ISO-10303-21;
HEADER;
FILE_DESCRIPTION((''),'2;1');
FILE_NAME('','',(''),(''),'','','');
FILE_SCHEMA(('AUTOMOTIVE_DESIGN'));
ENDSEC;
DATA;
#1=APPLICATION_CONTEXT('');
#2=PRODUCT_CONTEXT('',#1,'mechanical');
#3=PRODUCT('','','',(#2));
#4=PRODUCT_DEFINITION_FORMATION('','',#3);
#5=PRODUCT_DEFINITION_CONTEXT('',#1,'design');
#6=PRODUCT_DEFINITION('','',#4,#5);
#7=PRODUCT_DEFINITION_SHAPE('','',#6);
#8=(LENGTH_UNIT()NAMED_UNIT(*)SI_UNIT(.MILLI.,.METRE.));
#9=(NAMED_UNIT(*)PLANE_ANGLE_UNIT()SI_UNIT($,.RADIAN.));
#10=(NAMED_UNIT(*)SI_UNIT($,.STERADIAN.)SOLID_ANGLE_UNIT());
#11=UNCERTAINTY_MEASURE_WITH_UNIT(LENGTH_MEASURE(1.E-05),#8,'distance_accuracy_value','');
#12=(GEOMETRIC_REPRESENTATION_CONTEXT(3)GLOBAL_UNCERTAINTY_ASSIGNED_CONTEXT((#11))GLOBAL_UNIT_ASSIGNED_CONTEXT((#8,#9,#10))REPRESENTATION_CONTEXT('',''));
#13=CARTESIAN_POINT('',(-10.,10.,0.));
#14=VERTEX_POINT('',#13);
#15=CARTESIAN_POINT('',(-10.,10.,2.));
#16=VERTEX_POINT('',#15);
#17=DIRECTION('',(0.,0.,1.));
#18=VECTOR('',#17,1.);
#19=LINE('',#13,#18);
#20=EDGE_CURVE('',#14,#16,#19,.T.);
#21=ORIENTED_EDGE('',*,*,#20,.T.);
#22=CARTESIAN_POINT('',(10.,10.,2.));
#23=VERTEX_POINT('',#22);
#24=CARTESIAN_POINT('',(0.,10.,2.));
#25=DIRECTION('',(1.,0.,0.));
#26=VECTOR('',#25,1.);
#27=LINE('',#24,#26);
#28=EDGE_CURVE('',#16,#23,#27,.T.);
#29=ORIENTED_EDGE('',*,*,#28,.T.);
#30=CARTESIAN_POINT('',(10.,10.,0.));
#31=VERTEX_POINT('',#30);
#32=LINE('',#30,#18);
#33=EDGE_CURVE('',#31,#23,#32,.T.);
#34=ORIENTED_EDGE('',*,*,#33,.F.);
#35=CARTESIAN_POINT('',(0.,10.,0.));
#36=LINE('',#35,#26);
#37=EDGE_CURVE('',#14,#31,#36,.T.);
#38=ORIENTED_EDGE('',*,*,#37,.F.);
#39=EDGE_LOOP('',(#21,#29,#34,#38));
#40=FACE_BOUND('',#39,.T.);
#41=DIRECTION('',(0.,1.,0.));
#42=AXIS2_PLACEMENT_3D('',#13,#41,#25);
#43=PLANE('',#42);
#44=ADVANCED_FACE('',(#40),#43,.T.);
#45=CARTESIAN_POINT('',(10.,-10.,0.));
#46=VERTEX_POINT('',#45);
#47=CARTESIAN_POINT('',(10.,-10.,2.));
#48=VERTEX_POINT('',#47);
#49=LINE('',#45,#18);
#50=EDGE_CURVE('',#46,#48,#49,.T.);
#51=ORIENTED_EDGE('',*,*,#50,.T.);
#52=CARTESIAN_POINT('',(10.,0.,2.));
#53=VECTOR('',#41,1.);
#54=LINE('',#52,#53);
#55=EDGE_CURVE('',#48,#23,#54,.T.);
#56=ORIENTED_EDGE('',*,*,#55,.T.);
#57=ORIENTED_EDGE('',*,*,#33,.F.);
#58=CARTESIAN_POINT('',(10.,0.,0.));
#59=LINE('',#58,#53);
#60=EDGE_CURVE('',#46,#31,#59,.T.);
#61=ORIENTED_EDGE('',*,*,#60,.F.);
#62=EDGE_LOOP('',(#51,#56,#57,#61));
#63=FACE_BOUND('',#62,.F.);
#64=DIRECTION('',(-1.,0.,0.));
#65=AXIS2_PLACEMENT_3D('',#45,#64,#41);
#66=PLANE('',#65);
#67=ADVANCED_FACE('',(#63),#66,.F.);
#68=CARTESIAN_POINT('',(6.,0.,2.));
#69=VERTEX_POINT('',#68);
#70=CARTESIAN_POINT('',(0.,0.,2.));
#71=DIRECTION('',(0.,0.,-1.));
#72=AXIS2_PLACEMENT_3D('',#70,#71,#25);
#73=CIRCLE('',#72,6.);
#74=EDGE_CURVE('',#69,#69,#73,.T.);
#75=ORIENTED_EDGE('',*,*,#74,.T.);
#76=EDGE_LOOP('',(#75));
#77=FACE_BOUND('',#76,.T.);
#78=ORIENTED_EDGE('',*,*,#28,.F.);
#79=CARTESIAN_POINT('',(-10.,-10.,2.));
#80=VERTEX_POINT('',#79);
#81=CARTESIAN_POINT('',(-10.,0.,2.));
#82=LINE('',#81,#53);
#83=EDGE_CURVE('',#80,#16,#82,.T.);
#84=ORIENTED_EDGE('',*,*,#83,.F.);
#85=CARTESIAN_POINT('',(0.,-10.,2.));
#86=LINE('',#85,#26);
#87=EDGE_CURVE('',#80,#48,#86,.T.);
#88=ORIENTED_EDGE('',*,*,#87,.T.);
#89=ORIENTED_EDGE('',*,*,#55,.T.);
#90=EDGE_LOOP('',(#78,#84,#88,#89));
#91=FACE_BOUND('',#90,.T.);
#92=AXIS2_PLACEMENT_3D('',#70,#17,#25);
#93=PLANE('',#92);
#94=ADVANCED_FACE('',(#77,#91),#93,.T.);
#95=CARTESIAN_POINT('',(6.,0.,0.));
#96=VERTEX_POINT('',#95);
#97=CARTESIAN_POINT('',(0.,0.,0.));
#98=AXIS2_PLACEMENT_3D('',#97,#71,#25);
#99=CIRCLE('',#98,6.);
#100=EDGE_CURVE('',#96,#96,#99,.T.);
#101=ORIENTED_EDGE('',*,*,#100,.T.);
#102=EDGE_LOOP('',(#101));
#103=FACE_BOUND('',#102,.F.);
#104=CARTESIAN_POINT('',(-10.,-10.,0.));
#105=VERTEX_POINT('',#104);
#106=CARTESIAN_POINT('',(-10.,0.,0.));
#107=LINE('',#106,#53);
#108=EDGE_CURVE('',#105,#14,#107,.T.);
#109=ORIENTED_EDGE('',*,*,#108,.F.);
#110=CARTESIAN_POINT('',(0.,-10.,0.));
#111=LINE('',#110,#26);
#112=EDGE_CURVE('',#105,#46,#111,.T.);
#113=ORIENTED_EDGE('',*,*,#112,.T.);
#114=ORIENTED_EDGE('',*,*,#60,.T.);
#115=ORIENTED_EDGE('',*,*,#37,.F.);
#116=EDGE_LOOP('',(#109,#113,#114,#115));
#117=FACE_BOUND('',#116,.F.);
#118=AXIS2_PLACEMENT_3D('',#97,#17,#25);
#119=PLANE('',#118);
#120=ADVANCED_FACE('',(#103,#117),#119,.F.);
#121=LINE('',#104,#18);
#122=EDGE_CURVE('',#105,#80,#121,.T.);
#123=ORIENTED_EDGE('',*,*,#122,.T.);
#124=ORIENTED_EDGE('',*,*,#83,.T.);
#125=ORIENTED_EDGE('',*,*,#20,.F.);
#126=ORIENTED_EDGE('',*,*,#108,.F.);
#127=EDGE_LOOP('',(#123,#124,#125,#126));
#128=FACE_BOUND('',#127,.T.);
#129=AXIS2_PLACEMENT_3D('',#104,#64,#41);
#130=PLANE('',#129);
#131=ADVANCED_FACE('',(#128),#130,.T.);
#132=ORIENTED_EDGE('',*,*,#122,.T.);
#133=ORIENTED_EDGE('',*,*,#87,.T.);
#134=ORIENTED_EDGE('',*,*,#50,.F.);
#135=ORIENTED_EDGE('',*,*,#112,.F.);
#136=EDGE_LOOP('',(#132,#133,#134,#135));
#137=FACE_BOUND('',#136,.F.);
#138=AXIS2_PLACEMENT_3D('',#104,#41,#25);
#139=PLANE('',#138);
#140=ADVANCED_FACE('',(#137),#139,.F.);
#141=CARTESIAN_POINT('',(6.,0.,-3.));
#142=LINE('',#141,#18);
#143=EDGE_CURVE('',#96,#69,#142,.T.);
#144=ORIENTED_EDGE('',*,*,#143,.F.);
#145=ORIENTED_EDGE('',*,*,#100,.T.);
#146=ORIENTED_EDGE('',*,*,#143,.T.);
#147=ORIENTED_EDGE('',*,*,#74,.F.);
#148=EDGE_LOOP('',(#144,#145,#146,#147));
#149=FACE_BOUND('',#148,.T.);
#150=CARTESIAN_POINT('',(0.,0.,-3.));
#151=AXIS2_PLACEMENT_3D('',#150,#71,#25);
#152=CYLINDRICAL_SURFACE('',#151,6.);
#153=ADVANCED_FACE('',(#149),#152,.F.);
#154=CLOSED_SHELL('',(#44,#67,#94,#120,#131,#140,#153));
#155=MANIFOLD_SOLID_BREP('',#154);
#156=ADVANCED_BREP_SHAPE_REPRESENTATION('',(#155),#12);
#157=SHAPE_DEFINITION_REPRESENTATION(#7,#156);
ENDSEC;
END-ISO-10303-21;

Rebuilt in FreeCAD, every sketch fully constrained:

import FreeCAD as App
import Part
import Sketcher

V = App.Vector

doc = App.newDocument("Part")
body = doc.addObject("PartDesign::Body", "Body")

sketch1 = doc.addObject("Sketcher::SketchObject", "Sketch")
body.addObject(sketch1)
sketch1.AttachmentSupport = (doc.XY_Plane, [""])
sketch1.MapMode = "FlatFace"
sketch1.AttachmentOffset = App.Placement(V(0, 0, -3), App.Rotation())
sketch1.addGeometry(Part.Circle(V(0, 0, 0), V(0, 0, 1), 6), False)
sketch1.addConstraint([
    Sketcher.Constraint("Coincident", 0, 3, -1, 1),
    Sketcher.Constraint("Diameter", 0, 12.0),
])
pad1 = doc.addObject("PartDesign::Pad", "Pad")
body.addObject(pad1)
pad1.Profile = sketch1
pad1.Length = 10
body2 = doc.addObject("PartDesign::Body", "Body001")

sketch2 = doc.addObject("Sketcher::SketchObject", "Sketch001")
body2.addObject(sketch2)
sketch2.AttachmentSupport = (doc.getObject("XY_Plane001"), [""])
sketch2.MapMode = "FlatFace"
sketch2.addGeometry([
    Part.LineSegment(V(-10, 10, 0), V(-10, -10, 0)),
    Part.LineSegment(V(-10, -10, 0), V(10, -10, 0)),
    Part.LineSegment(V(10, -10, 0), V(10, 10, 0)),
    Part.LineSegment(V(10, 10, 0), V(-10, 10, 0)),
], False)
sketch2.addConstraint([
    Sketcher.Constraint("Coincident", 0, 2, 1, 1),
    Sketcher.Constraint("Coincident", 1, 2, 2, 1),
    Sketcher.Constraint("Coincident", 2, 2, 3, 1),
    Sketcher.Constraint("Coincident", 3, 2, 0, 1),
    Sketcher.Constraint("Vertical", 0),
    Sketcher.Constraint("Horizontal", 1),
    Sketcher.Constraint("Vertical", 2),
    Sketcher.Constraint("Horizontal", 3),
    Sketcher.Constraint("Symmetric", 0, 2, 2, 2, -1, 1),
    Sketcher.Constraint("Equal", 3, 0),
    Sketcher.Constraint("DistanceX", 1, 1, 1, 2, 20.0),
])
pad2 = doc.addObject("PartDesign::Pad", "Pad001")
body2.addObject(pad2)
pad2.Profile = sketch2
pad2.Length = 2
doc.recompute()

boolean = doc.addObject("PartDesign::Boolean", "Boolean")
body2.addObject(boolean)
boolean.Type = "Cut"
boolean.addObjects([body])

doc.recompute()
